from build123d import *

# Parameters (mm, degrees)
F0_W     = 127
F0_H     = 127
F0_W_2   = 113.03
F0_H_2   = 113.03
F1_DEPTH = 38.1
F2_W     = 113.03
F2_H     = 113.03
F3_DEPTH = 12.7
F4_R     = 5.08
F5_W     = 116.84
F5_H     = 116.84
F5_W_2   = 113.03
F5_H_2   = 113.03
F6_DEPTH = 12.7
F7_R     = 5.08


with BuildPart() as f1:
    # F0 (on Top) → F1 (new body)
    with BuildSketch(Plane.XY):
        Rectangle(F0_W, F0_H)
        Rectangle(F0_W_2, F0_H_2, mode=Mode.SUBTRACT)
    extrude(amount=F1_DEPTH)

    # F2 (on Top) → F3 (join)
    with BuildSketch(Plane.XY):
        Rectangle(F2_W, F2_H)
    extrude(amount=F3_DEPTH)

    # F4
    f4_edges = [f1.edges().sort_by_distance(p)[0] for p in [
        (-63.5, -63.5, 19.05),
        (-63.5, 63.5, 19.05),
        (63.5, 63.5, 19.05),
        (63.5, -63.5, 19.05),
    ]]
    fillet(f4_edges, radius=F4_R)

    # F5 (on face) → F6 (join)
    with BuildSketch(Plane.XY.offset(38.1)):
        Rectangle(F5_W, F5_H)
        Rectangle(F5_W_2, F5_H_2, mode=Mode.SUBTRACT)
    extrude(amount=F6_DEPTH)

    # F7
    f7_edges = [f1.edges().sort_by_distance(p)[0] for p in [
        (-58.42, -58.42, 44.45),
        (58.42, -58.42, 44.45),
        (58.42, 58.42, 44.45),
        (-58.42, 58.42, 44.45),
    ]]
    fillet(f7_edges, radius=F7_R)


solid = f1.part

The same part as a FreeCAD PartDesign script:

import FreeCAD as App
import Part
import Sketcher
Q = App.Units.Quantity


def edges_at(feature, points):
    """Names of the edges that pass closest to the given points."""
    edges = feature.Shape.Edges
    near = lambda p: min(range(len(edges)), key=lambda i: edges[i].distToShape(Part.Vertex(*p))[0])
    return sorted({f"Edge{near(p) + 1}" for p in points})

doc = App.newDocument("Part")
body = doc.addObject("PartDesign::Body", "Body")

sketch1 = body.newObject("Sketcher::SketchObject", "Sketch")
sketch1.AttachmentSupport = (doc.getObject("XY_Plane"), [""])
sketch1.MapMode = "FlatFace"
sketch1.addGeometry(Part.LineSegment(App.Vector(-63.5, 63.5, 0), App.Vector(-63.5, -63.5, 0)), False)
sketch1.addGeometry(Part.LineSegment(App.Vector(-63.5, -63.5, 0), App.Vector(63.5, -63.5, 0)), False)
sketch1.addGeometry(Part.LineSegment(App.Vector(63.5, -63.5, 0), App.Vector(63.5, 63.5, 0)), False)
sketch1.addGeometry(Part.LineSegment(App.Vector(63.5, 63.5, 0), App.Vector(-63.5, 63.5, 0)), False)
sketch1.addGeometry(Part.LineSegment(App.Vector(56.515, -56.515, 0), App.Vector(-56.515, -56.515, 0)), False)
sketch1.addGeometry(Part.LineSegment(App.Vector(-56.515, -56.515, 0), App.Vector(-56.515, 56.515, 0)), False)
sketch1.addGeometry(Part.LineSegment(App.Vector(-56.515, 56.515, 0), App.Vector(56.515, 56.515, 0)), False)
sketch1.addGeometry(Part.LineSegment(App.Vector(56.515, 56.515, 0), App.Vector(56.515, -56.515, 0)), False)
sketch1.addConstraint(Sketcher.Constraint("Coincident", 0, 2, 1, 1))
sketch1.addConstraint(Sketcher.Constraint("Coincident", 1, 2, 2, 1))
sketch1.addConstraint(Sketcher.Constraint("Coincident", 2, 2, 3, 1))
sketch1.addConstraint(Sketcher.Constraint("Coincident", 3, 2, 0, 1))
sketch1.addConstraint(Sketcher.Constraint("Coincident", 4, 2, 5, 1))
sketch1.addConstraint(Sketcher.Constraint("Coincident", 5, 2, 6, 1))
sketch1.addConstraint(Sketcher.Constraint("Coincident", 6, 2, 7, 1))
sketch1.addConstraint(Sketcher.Constraint("Coincident", 7, 2, 4, 1))
sketch1.addConstraint(Sketcher.Constraint("Vertical", 0))
sketch1.addConstraint(Sketcher.Constraint("Horizontal", 1))
sketch1.addConstraint(Sketcher.Constraint("Vertical", 2))
sketch1.addConstraint(Sketcher.Constraint("Horizontal", 3))
sketch1.addConstraint(Sketcher.Constraint("Horizontal", 4))
sketch1.addConstraint(Sketcher.Constraint("Vertical", 5))
sketch1.addConstraint(Sketcher.Constraint("Horizontal", 6))
sketch1.addConstraint(Sketcher.Constraint("Vertical", 7))
sketch1.addConstraint(Sketcher.Constraint("Symmetric", 0, 2, 2, 2, -1, 1))
sketch1.addConstraint(Sketcher.Constraint("Symmetric", 4, 2, 6, 2, -1, 1))
sketch1.addConstraint(Sketcher.Constraint("Equal", 3, 0))
sketch1.addConstraint(Sketcher.Constraint("Equal", 6, 5))
sketch1.addConstraint(Sketcher.Constraint("DistanceX", 1, 1, 1, 2, Q("5 in")))
sketch1.addConstraint(Sketcher.Constraint("DistanceX", 4, 2, 4, 1, Q("4.45 in")))
pad1 = body.newObject("PartDesign::Pad", "Pad")
pad1.Profile = sketch1
pad1.Length = Q("1.5 in")

sketch2 = body.newObject("Sketcher::SketchObject", "Sketch001")
sketch2.AttachmentSupport = (doc.getObject("XY_Plane"), [""])
sketch2.MapMode = "FlatFace"
sketch2.addGeometry(Part.LineSegment(App.Vector(-56.515, 56.515, 0), App.Vector(-56.515, -56.515, 0)), False)
sketch2.addGeometry(Part.LineSegment(App.Vector(-56.515, -56.515, 0), App.Vector(56.515, -56.515, 0)), False)
sketch2.addGeometry(Part.LineSegment(App.Vector(56.515, -56.515, 0), App.Vector(56.515, 56.515, 0)), False)
sketch2.addGeometry(Part.LineSegment(App.Vector(56.515, 56.515, 0), App.Vector(-56.515, 56.515, 0)), False)
sketch2.addConstraint(Sketcher.Constraint("Coincident", 0, 2, 1, 1))
sketch2.addConstraint(Sketcher.Constraint("Coincident", 1, 2, 2, 1))
sketch2.addConstraint(Sketcher.Constraint("Coincident", 2, 2, 3, 1))
sketch2.addConstraint(Sketcher.Constraint("Coincident", 3, 2, 0, 1))
sketch2.addConstraint(Sketcher.Constraint("Vertical", 0))
sketch2.addConstraint(Sketcher.Constraint("Horizontal", 1))
sketch2.addConstraint(Sketcher.Constraint("Vertical", 2))
sketch2.addConstraint(Sketcher.Constraint("Horizontal", 3))
sketch2.addConstraint(Sketcher.Constraint("Symmetric", 0, 2, 2, 2, -1, 1))
sketch2.addConstraint(Sketcher.Constraint("Equal", 3, 0))
sketch2.addConstraint(Sketcher.Constraint("DistanceX", 1, 1, 1, 2, Q("4.45 in")))
pad2 = body.newObject("PartDesign::Pad", "Pad001")
pad2.Profile = sketch2
pad2.Length = Q("0.5 in")
doc.recompute()

fillet = body.newObject("PartDesign::Fillet", "Fillet")
fillet.Base = (pad2, edges_at(pad2, [
    (-63.5, -63.5, 19.05),
    (-63.5, 63.5, 19.05),
    (63.5, 63.5, 19.05),
    (63.5, -63.5, 19.05),
]))
fillet.Radius = Q("0.2 in")

sketch3 = body.newObject("Sketcher::SketchObject", "Sketch002")
sketch3.AttachmentSupport = (doc.getObject("XY_Plane"), [""])
sketch3.MapMode = "FlatFace"
sketch3.AttachmentOffset = App.Placement(App.Vector(0, 0, 1.5 * 25.4), App.Rotation())
sketch3.addGeometry(Part.LineSegment(App.Vector(-58.42, 58.42, 0), App.Vector(-58.42, -58.42, 0)), False)
sketch3.addGeometry(Part.LineSegment(App.Vector(-58.42, -58.42, 0), App.Vector(58.42, -58.42, 0)), False)
sketch3.addGeometry(Part.LineSegment(App.Vector(58.42, -58.42, 0), App.Vector(58.42, 58.42, 0)), False)
sketch3.addGeometry(Part.LineSegment(App.Vector(58.42, 58.42, 0), App.Vector(-58.42, 58.42, 0)), False)
sketch3.addGeometry(Part.LineSegment(App.Vector(56.515, -56.515, 0), App.Vector(-56.515, -56.515, 0)), False)
sketch3.addGeometry(Part.LineSegment(App.Vector(-56.515, -56.515, 0), App.Vector(-56.515, 56.515, 0)), False)
sketch3.addGeometry(Part.LineSegment(App.Vector(-56.515, 56.515, 0), App.Vector(56.515, 56.515, 0)), False)
sketch3.addGeometry(Part.LineSegment(App.Vector(56.515, 56.515, 0), App.Vector(56.515, -56.515, 0)), False)
sketch3.addConstraint(Sketcher.Constraint("Coincident", 0, 2, 1, 1))
sketch3.addConstraint(Sketcher.Constraint("Coincident", 1, 2, 2, 1))
sketch3.addConstraint(Sketcher.Constraint("Coincident", 2, 2, 3, 1))
sketch3.addConstraint(Sketcher.Constraint("Coincident", 3, 2, 0, 1))
sketch3.addConstraint(Sketcher.Constraint("Coincident", 4, 2, 5, 1))
sketch3.addConstraint(Sketcher.Constraint("Coincident", 5, 2, 6, 1))
sketch3.addConstraint(Sketcher.Constraint("Coincident", 6, 2, 7, 1))
sketch3.addConstraint(Sketcher.Constraint("Coincident", 7, 2, 4, 1))
sketch3.addConstraint(Sketcher.Constraint("Vertical", 0))
sketch3.addConstraint(Sketcher.Constraint("Horizontal", 1))
sketch3.addConstraint(Sketcher.Constraint("Vertical", 2))
sketch3.addConstraint(Sketcher.Constraint("Horizontal", 3))
sketch3.addConstraint(Sketcher.Constraint("Horizontal", 4))
sketch3.addConstraint(Sketcher.Constraint("Vertical", 5))
sketch3.addConstraint(Sketcher.Constraint("Horizontal", 6))
sketch3.addConstraint(Sketcher.Constraint("Vertical", 7))
sketch3.addConstraint(Sketcher.Constraint("Symmetric", 0, 2, 2, 2, -1, 1))
sketch3.addConstraint(Sketcher.Constraint("Symmetric", 4, 2, 6, 2, -1, 1))
sketch3.addConstraint(Sketcher.Constraint("Equal", 3, 0))
sketch3.addConstraint(Sketcher.Constraint("Equal", 6, 5))
sketch3.addConstraint(Sketcher.Constraint("DistanceX", 1, 1, 1, 2, Q("4.6 in")))
sketch3.addConstraint(Sketcher.Constraint("DistanceX", 4, 2, 4, 1, Q("4.45 in")))
pad3 = body.newObject("PartDesign::Pad", "Pad002")
pad3.Profile = sketch3
pad3.Length = Q("0.5 in")
doc.recompute()

fillet2 = body.newObject("PartDesign::Fillet", "Fillet001")
fillet2.Base = (pad3, edges_at(pad3, [
    (-58.42, -58.42, 44.45),
    (58.42, -58.42, 44.45),
    (58.42, 58.42, 44.45),
    (-58.42, 58.42, 44.45),
]))
fillet2.Radius = Q("0.2 in")

doc.recompute()
